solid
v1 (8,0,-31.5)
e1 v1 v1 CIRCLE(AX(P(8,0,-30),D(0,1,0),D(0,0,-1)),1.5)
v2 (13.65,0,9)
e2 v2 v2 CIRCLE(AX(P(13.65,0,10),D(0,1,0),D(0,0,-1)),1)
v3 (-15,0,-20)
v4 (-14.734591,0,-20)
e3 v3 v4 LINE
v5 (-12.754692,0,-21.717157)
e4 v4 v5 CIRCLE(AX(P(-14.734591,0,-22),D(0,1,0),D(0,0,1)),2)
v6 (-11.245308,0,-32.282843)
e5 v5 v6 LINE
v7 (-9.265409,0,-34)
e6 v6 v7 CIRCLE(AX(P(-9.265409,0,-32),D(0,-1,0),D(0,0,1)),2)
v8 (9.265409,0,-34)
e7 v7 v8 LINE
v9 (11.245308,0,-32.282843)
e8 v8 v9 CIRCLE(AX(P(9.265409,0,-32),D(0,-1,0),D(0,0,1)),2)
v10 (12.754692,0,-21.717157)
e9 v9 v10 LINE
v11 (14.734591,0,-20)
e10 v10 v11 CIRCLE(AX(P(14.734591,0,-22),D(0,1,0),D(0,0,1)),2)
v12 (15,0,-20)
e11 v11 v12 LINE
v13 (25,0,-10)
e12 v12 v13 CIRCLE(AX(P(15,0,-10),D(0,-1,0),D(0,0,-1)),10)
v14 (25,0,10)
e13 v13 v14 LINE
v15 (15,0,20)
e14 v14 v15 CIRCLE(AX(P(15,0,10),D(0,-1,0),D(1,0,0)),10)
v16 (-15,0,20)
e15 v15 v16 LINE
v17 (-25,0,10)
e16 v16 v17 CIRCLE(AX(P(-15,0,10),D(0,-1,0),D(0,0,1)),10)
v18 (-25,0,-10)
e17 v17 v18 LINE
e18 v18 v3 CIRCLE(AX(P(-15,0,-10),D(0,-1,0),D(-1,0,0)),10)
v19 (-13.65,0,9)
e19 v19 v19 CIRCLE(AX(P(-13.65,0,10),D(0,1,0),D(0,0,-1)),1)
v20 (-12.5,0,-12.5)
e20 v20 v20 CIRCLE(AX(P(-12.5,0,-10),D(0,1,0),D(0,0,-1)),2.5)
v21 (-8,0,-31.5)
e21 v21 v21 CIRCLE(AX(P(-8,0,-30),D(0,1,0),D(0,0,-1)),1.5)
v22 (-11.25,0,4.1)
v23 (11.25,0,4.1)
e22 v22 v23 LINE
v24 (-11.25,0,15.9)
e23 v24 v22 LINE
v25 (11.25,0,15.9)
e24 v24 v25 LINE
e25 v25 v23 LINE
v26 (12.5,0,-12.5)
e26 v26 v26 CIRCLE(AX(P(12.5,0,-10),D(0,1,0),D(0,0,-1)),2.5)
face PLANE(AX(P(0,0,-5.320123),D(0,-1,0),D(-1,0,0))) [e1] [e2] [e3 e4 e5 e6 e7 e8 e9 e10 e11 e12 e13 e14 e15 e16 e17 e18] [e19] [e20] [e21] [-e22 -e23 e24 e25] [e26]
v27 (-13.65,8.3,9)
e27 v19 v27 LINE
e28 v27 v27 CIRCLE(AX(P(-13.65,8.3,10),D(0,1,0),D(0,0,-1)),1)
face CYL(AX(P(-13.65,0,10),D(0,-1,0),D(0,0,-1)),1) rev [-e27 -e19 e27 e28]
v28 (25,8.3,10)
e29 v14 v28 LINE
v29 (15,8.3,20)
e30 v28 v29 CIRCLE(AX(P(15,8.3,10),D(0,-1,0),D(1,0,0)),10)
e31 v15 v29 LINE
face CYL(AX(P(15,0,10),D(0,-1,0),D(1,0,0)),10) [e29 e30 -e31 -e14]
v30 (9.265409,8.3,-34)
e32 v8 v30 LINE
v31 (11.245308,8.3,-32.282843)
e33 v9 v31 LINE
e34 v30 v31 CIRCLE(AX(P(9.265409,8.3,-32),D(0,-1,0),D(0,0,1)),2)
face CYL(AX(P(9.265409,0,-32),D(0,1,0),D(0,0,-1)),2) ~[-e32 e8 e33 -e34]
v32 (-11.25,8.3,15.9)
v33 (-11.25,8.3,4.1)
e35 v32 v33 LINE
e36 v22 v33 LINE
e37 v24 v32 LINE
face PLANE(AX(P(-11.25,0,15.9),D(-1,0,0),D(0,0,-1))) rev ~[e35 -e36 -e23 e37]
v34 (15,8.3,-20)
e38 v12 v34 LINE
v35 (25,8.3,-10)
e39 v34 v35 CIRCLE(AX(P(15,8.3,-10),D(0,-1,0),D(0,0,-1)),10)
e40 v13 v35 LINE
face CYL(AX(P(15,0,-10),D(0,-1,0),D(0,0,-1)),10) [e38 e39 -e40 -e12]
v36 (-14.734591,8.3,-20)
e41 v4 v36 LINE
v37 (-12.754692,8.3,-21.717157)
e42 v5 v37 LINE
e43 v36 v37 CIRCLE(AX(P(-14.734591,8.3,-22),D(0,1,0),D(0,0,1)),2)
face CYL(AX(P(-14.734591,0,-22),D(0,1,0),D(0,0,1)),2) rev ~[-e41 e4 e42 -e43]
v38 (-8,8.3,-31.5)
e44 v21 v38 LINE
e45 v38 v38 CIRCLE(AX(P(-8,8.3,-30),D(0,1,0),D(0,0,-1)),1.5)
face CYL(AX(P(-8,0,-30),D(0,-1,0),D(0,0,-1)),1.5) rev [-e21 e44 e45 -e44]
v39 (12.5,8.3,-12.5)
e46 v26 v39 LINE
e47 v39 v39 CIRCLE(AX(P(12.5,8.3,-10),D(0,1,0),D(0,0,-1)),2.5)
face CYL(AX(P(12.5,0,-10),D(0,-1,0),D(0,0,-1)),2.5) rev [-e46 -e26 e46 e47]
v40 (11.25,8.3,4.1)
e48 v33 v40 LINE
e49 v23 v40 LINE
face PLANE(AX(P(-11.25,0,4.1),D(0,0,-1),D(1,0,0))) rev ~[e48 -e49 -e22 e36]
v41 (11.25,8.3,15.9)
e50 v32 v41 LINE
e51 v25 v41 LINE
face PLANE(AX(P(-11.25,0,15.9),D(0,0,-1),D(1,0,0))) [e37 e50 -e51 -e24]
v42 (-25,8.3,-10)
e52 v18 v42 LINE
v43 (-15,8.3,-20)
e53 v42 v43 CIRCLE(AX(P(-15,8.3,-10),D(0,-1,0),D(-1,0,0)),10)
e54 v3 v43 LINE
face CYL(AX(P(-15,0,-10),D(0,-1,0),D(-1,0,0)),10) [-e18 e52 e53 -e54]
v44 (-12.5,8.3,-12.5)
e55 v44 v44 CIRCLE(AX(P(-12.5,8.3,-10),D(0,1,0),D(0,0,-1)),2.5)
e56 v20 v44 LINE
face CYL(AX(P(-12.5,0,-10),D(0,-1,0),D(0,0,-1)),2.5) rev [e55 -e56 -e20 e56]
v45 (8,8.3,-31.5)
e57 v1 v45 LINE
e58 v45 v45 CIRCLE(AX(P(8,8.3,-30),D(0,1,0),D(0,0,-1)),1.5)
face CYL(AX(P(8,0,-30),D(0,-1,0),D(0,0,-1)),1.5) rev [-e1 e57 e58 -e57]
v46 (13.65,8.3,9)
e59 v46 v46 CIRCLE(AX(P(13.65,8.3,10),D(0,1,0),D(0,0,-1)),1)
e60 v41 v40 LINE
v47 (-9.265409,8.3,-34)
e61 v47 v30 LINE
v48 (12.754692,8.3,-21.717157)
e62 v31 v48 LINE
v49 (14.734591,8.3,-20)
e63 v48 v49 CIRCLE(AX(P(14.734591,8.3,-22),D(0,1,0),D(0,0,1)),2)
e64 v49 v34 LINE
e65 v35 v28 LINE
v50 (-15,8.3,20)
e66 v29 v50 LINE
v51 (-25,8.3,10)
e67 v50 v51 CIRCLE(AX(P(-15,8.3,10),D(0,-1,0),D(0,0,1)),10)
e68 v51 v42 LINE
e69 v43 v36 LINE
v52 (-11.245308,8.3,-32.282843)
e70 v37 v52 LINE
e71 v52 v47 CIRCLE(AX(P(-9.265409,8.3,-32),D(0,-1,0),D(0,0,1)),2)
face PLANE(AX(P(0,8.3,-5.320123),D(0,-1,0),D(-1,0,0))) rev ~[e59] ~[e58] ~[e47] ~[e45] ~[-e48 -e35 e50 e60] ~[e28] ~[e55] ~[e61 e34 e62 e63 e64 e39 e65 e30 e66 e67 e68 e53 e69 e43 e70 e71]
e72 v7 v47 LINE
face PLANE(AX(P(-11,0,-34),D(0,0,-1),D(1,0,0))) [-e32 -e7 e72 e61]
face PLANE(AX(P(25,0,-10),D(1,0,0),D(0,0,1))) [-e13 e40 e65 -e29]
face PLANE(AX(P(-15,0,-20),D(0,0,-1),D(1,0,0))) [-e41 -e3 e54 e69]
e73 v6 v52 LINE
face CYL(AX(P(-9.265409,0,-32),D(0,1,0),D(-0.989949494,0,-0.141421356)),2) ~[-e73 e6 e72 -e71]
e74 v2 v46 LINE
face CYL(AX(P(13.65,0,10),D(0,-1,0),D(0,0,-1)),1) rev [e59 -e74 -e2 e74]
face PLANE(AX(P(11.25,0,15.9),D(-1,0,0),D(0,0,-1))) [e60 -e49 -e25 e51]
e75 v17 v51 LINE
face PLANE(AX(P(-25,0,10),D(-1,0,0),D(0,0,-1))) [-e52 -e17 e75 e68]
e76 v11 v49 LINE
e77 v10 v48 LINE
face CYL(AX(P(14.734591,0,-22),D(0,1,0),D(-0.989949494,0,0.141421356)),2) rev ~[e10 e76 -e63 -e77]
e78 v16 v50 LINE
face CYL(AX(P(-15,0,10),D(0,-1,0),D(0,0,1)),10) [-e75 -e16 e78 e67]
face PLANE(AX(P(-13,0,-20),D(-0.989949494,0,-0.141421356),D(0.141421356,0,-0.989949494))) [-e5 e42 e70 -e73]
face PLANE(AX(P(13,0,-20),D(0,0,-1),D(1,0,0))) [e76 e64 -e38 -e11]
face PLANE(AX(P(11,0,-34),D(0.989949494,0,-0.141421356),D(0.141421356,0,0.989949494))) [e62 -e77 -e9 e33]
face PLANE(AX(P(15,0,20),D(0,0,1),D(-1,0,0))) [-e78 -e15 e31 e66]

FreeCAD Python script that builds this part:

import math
import FreeCAD as App
import Part
import Sketcher
Q = App.Units.Quantity


def edges_at(feature, points):
    """Names of the edges that pass closest to the given points."""
    edges = feature.Shape.Edges
    near = lambda p: min(range(len(edges)), key=lambda i: edges[i].distToShape(Part.Vertex(*p))[0])
    return sorted({f"Edge{near(p) + 1}" for p in points})


def add_polygon(sketch, points):
    """Adds a closed chain of lines whose ends are joined by coincident constraints."""
    first, n = sketch.GeometryCount, len(points)
    for a, b in zip(points, points[1:] + points[:1]):
        sketch.addGeometry(Part.LineSegment(App.Vector(*a, 0), App.Vector(*b, 0)), False)
    for i in range(n):
        sketch.addConstraint(Sketcher.Constraint("Coincident", first + i, 2, first + (i + 1) % n, 1))

doc = App.newDocument("Part")
body = doc.addObject("PartDesign::Body", "Body")

sketch1 = body.newObject("Sketcher::SketchObject", "Sketch")
sketch1.AttachmentSupport = (doc.getObject("XZ_Plane"), [""])
sketch1.MapMode = "FlatFace"
sketch1.addGeometry(Part.LineSegment(App.Vector(-13, -20, 0), App.Vector(-15, -20, 0)), False)
sketch1.addGeometry(Part.ArcOfCircle(Part.Circle(App.Vector(-15, -10, 0), App.Vector(0, 0, 1), 10), math.radians(180), math.radians(270)), False)
sketch1.addGeometry(Part.LineSegment(App.Vector(-25, -10, 0), App.Vector(-25, 10, 0)), False)
sketch1.addGeometry(Part.ArcOfCircle(Part.Circle(App.Vector(-15, 10, 0), App.Vector(0, 0, 1), 10), math.radians(90), math.radians(180)), False)
sketch1.addGeometry(Part.LineSegment(App.Vector(-15, 20, 0), App.Vector(15, 20, 0)), False)
sketch1.addGeometry(Part.ArcOfCircle(Part.Circle(App.Vector(15, 10, 0), App.Vector(0, 0, 1), 10), math.radians(0), math.radians(90)), False)
sketch1.addGeometry(Part.LineSegment(App.Vector(25, 10, 0), App.Vector(25, -10, 0)), False)
sketch1.addGeometry(Part.ArcOfCircle(Part.Circle(App.Vector(15, -10, 0), App.Vector(0, 0, 1), 10), math.radians(-90), math.radians(0)), False)
sketch1.addGeometry(Part.LineSegment(App.Vector(15, -20, 0), App.Vector(13, -20, 0)), False)
sketch1.addGeometry(Part.LineSegment(App.Vector(13, -20, 0), App.Vector(11, -34, 0)), False)
sketch1.addGeometry(Part.LineSegment(App.Vector(11, -34, 0), App.Vector(-11, -34, 0)), False)
sketch1.addGeometry(Part.LineSegment(App.Vector(-11, -34, 0), App.Vector(-13, -20, 0)), False)
sketch1.addGeometry(Part.Circle(App.Vector(13.7, 10, 0), App.Vector(0, 0, 1), 1), False)
add_polygon(sketch1, [(-11.2, 15.9), (-11.2, 4.1), (11.2, 4.1), (11.2, 15.9)])
sketch1.addGeometry(Part.Circle(App.Vector(-13.7, 10, 0), App.Vector(0, 0, 1), 1), False)
sketch1.addGeometry(Part.Circle(App.Vector(12.5, -10, 0), App.Vector(0, 0, 1), 2.5), False)
sketch1.addGeometry(Part.Circle(App.Vector(8, -30, 0), App.Vector(0, 0, 1), 1.5), False)
sketch1.addGeometry(Part.Circle(App.Vector(-12.5, -10, 0), App.Vector(0, 0, 1), 2.5), False)
sketch1.addGeometry(Part.Circle(App.Vector(-8, -30, 0), App.Vector(0, 0, 1), 1.5), False)
sketch1.addConstraint(Sketcher.Constraint("Tangent", 0, 2, 1, 2))
sketch1.addConstraint(Sketcher.Constraint("Tangent", 1, 1, 2, 1))
sketch1.addConstraint(Sketcher.Constraint("Tangent", 2, 2, 3, 2))
sketch1.addConstraint(Sketcher.Constraint("Tangent", 3, 1, 4, 1))
sketch1.addConstraint(Sketcher.Constraint("Tangent", 4, 2, 5, 2))
sketch1.addConstraint(Sketcher.Constraint("Tangent", 5, 1, 6, 1))
sketch1.addConstraint(Sketcher.Constraint("Tangent", 6, 2, 7, 2))
sketch1.addConstraint(Sketcher.Constraint("Tangent", 7, 1, 8, 1))
sketch1.addConstraint(Sketcher.Constraint("Coincident", 8, 2, 9, 1))
sketch1.addConstraint(Sketcher.Constraint("Coincident", 9, 2, 10, 1))
sketch1.addConstraint(Sketcher.Constraint("Coincident", 10, 2, 11, 1))
sketch1.addConstraint(Sketcher.Constraint("Coincident", 11, 2, 0, 1))
sketch1.addConstraint(Sketcher.Constraint("Horizontal", 0))
sketch1.addConstraint(Sketcher.Constraint("Vertical", 2))
sketch1.addConstraint(Sketcher.Constraint("Horizontal", 4))
sketch1.addConstraint(Sketcher.Constraint("Vertical", 6))
sketch1.addConstraint(Sketcher.Constraint("Horizontal", 8))
sketch1.addConstraint(Sketcher.Constraint("Horizontal", 10))
sketch1.addConstraint(Sketcher.Constraint("Vertical", 13))
sketch1.addConstraint(Sketcher.Constraint("Horizontal", 14))
sketch1.addConstraint(Sketcher.Constraint("Vertical", 15))
sketch1.addConstraint(Sketcher.Constraint("Horizontal", 16))
sketch1.addConstraint(Sketcher.Constraint("Equal", 1, 3))
sketch1.addConstraint(Sketcher.Constraint("Equal", 3, 5))
sketch1.addConstraint(Sketcher.Constraint("Equal", 5, 7))
sketch1.addConstraint(Sketcher.Constraint("Equal", 12, 17))
sketch1.addConstraint(Sketcher.Constraint("Equal", 18, 20))
sketch1.addConstraint(Sketcher.Constraint("Equal", 19, 21))
sketch1.addConstraint(Sketcher.Constraint("Symmetric", 1, 3, 5, 3, -1, 1))
sketch1.addConstraint(Sketcher.Constraint("Symmetric", 12, 3, 17, 3, -2))
sketch1.addConstraint(Sketcher.Constraint("Symmetric", 18, 3, 20, 3, -2))
sketch1.addConstraint(Sketcher.Constraint("Symmetric", 19, 3, 21, 3, -2))
sketch1.addConstraint(Sketcher.Constraint("Symmetric", 8, 2, 11, 2, -2))
sketch1.addConstraint(Sketcher.Constraint("Horizontal", 5, 3, 12, 3))
sketch1.addConstraint(Sketcher.Constraint("Horizontal", 7, 3, 18, 3))
sketch1.addConstraint(Sketcher.Constraint("Equal", 9, 11))
sketch1.addConstraint(Sketcher.Constraint("Diameter", 12, Q("2 mm")))
sketch1.addConstraint(Sketcher.Constraint("Diameter", 18, Q("5 mm")))
sketch1.addConstraint(Sketcher.Constraint("Diameter", 19, Q("3 mm")))
sketch1.addConstraint(Sketcher.Constraint("Radius", 1, Q("10 mm")))
sketch1.addConstraint(Sketcher.Constraint("DistanceX", 0, 2, 0, 1, Q("2 mm")))
sketch1.addConstraint(Sketcher.Constraint("DistanceX", 4, 1, 4, 2, Q("30 mm")))
sketch1.addConstraint(Sketcher.Constraint("DistanceX", 10, 2, 10, 1, Q("22 mm")))
sketch1.addConstraint(Sketcher.Constraint("DistanceY", 2, 1, 2, 2, Q("20 mm")))
sketch1.addConstraint(Sketcher.Constraint("DistanceX", 14, 1, 14, 2, Q("22.5 mm")))
sketch1.addConstraint(Sketcher.Constraint("DistanceY", 13, 2, 13, 1, Q("11.8 mm")))
sketch1.addConstraint(Sketcher.Constraint("DistanceX", -1, 1, 19, 3, Q("8 mm")))
sketch1.addConstraint(Sketcher.Constraint("DistanceY", 19, 3, -1, 1, Q("30 mm")))
sketch1.addConstraint(Sketcher.Constraint("DistanceY", 9, 2, -1, 1, Q("34 mm")))
sketch1.addConstraint(Sketcher.Constraint("DistanceX", 20, 3, 18, 3, Q("25 mm")))
sketch1.addConstraint(Sketcher.Constraint("DistanceY", -1, 1, 13, 2, Q("4.1 mm")))
sketch1.addConstraint(Sketcher.Constraint("DistanceX", 17, 3, 12, 3, Q("27.3 mm")))
sketch1.addConstraint(Sketcher.Constraint("DistanceX", 17, 3, 13, 2, Q("2.4 mm")))
pad1 = body.newObject("PartDesign::Pad", "Pad")
pad1.Profile = sketch1
pad1.Length = 8.3
pad1.Reversed = True
doc.recompute()

fillet = body.newObject("PartDesign::Fillet", "Fillet")
fillet.Base = (pad1, edges_at(pad1, [
    (-13, 4.15, -20),
    (-11, 4.15, -34),
    (11, 4.15, -34),
    (13, 4.15, -20),
]))
fillet.Radius = 2

doc.recompute()
